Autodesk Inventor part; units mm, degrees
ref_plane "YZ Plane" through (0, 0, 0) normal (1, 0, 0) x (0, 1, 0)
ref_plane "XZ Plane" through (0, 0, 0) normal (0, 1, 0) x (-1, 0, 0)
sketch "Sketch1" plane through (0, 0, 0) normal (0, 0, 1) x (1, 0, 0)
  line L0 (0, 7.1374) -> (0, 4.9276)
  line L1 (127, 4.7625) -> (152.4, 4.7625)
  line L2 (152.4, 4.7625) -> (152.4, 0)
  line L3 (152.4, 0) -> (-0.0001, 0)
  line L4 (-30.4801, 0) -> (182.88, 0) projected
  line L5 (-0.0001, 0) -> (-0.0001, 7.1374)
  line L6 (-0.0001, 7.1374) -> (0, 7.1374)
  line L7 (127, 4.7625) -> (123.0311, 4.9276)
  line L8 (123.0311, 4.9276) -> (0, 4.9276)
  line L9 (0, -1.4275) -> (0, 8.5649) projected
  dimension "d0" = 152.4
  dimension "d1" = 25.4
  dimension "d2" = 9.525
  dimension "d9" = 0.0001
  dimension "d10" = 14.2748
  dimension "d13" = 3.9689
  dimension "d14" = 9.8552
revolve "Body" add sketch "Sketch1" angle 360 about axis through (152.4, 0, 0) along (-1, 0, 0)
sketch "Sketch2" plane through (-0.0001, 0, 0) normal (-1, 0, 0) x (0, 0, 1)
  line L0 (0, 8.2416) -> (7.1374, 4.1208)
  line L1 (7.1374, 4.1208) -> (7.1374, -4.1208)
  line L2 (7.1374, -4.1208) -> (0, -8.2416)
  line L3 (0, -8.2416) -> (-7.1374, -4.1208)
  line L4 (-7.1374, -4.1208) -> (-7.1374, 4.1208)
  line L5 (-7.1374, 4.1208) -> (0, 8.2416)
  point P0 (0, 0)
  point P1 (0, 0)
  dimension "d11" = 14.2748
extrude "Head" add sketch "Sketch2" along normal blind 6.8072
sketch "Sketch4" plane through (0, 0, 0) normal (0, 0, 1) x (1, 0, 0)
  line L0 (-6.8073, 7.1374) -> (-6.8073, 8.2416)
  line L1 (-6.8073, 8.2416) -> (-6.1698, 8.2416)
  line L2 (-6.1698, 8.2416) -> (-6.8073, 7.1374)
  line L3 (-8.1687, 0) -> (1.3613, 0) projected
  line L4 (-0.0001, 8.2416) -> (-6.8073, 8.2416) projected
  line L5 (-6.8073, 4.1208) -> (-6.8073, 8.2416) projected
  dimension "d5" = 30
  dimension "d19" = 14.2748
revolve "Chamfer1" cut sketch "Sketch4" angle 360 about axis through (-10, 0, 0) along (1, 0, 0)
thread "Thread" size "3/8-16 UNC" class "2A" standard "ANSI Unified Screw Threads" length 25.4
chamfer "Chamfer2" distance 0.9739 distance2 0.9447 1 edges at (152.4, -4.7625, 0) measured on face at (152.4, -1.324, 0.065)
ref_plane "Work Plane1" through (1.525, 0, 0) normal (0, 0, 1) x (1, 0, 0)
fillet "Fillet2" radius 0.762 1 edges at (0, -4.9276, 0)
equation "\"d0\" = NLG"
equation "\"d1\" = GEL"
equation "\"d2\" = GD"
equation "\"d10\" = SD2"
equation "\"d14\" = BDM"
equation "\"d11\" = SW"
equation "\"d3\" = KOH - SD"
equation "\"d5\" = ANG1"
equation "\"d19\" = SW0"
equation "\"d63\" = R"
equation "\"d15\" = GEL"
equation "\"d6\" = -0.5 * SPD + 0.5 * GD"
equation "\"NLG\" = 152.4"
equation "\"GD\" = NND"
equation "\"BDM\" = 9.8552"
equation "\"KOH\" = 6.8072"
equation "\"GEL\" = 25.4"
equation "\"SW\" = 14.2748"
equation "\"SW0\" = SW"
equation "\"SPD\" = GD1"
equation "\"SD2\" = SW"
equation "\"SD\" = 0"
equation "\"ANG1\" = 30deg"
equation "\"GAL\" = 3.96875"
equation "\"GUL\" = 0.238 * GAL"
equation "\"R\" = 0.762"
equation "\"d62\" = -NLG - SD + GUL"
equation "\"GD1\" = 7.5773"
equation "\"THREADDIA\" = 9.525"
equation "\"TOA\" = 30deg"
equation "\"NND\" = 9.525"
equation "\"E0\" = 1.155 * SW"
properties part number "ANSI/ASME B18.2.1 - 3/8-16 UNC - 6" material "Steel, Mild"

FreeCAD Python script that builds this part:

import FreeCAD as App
import Part
import Sketcher
from FreeCAD import Vector
Q = App.Units.Quantity


def edges_at(feature, points):
    """Names of the edges that pass closest to the given points."""
    edges = feature.Shape.Edges
    near = lambda p: min(range(len(edges)), key=lambda i: edges[i].distToShape(Part.Vertex(*p))[0])
    return sorted({f"Edge{near(p) + 1}" for p in points})

doc = App.newDocument("Part")
body = doc.addObject("PartDesign::Body", "Body")

sketch1 = doc.addObject("Sketcher::SketchObject", "Sketch")
body.addObject(sketch1)
sketch1.AttachmentSupport = (doc.XY_Plane, [""])
sketch1.MapMode = "FlatFace"
sketch1.addGeometry(Part.LineSegment(Vector(152.4, 4.8, 0), Vector(127, 4.8, 0)), False)
sketch1.addGeometry(Part.LineSegment(Vector(127, 4.8, 0), Vector(123, 4.9, 0)), False)
sketch1.addGeometry(Part.LineSegment(Vector(123, 4.9, 0), Vector(0, 4.9, 0)), False)
sketch1.addGeometry(Part.LineSegment(Vector(0, 4.9, 0), Vector(0, 0, 0)), False)
sketch1.addGeometry(Part.LineSegment(Vector(0, 0, 0), Vector(152.4, 0, 0)), False)
sketch1.addGeometry(Part.LineSegment(Vector(152.4, 0, 0), Vector(152.4, 4.8, 0)), False)
sketch1.addConstraint(Sketcher.Constraint("Coincident", 0, 2, 1, 1))
sketch1.addConstraint(Sketcher.Constraint("Coincident", 1, 2, 2, 1))
sketch1.addConstraint(Sketcher.Constraint("Coincident", 2, 2, 3, 1))
sketch1.addConstraint(Sketcher.Constraint("Coincident", 3, 2, 4, 1))
sketch1.addConstraint(Sketcher.Constraint("Coincident", 4, 2, 5, 1))
sketch1.addConstraint(Sketcher.Constraint("Coincident", 5, 2, 0, 1))
sketch1.addConstraint(Sketcher.Constraint("Horizontal", 0))
sketch1.addConstraint(Sketcher.Constraint("Horizontal", 2))
sketch1.addConstraint(Sketcher.Constraint("Vertical", 3))
sketch1.addConstraint(Sketcher.Constraint("Horizontal", 4))
sketch1.addConstraint(Sketcher.Constraint("Vertical", 5))
sketch1.addConstraint(Sketcher.Constraint("Coincident", 3, 2, -1, 1))
sketch1.addConstraint(Sketcher.Constraint("DistanceX", 0, 2, 0, 1, Q("1 in")))
sketch1.addConstraint(Sketcher.Constraint("DistanceX", 4, 1, 4, 2, Q("6 in")))
sketch1.addConstraint(Sketcher.Constraint("DistanceX", 1, 2, 0, 2, Q("3.969 mm")))
sketch1.addConstraint(Sketcher.Constraint("DistanceY", 3, 2, 3, 1, Q("0.194 in")))
sketch1.addConstraint(Sketcher.Constraint("DistanceY", 5, 1, 5, 2, Q("0.1875 in")))
revolution = doc.addObject("PartDesign::Revolution", "Revolution")
body.addObject(revolution)
revolution.Profile = sketch1
revolution.ReferenceAxis = (sketch1, ["H_Axis"])
revolution.Angle = 360

sketch2 = doc.addObject("Sketcher::SketchObject", "Sketch001")
body.addObject(sketch2)
sketch2.AttachmentSupport = (doc.YZ_Plane, [""])
sketch2.MapMode = "FlatFace"
sketch2.AttachmentOffset = App.Placement(Vector(0, 0, -0.0000039 * 25.4), App.Rotation())
sketch2.addGeometry(Part.LineSegment(Vector(4, 7, 0), Vector(8, 0, 0)), False)
sketch2.addGeometry(Part.LineSegment(Vector(8, 0, 0), Vector(4, -7, 0)), False)
sketch2.addGeometry(Part.LineSegment(Vector(4, -7, 0), Vector(-4, -7, 0)), False)
sketch2.addGeometry(Part.LineSegment(Vector(-4, -7, 0), Vector(-8, 0, 0)), False)
sketch2.addGeometry(Part.LineSegment(Vector(-8, 0, 0), Vector(-4, 7, 0)), False)
sketch2.addGeometry(Part.LineSegment(Vector(-4, 7, 0), Vector(4, 7, 0)), False)
sketch2.addConstraint(Sketcher.Constraint("Coincident", 0, 2, 1, 1))
sketch2.addConstraint(Sketcher.Constraint("Coincident", 1, 2, 2, 1))
sketch2.addConstraint(Sketcher.Constraint("Coincident", 2, 2, 3, 1))
sketch2.addConstraint(Sketcher.Constraint("Coincident", 3, 2, 4, 1))
sketch2.addConstraint(Sketcher.Constraint("Coincident", 4, 2, 5, 1))
sketch2.addConstraint(Sketcher.Constraint("Coincident", 5, 2, 0, 1))
sketch2.addConstraint(Sketcher.Constraint("Horizontal", 2))
sketch2.addConstraint(Sketcher.Constraint("Horizontal", 5))
sketch2.addConstraint(Sketcher.Constraint("Symmetric", 0, 2, 3, 2, -1, 1))
sketch2.addConstraint(Sketcher.Constraint("Symmetric", 1, 2, 4, 2, -1, 1))
sketch2.addConstraint(Sketcher.Constraint("PointOnObject", 0, 2, -1))
sketch2.addConstraint(Sketcher.Constraint("Parallel", 0, 3))
sketch2.addConstraint(Sketcher.Constraint("Vertical", 2, 2, 4, 2))
sketch2.addConstraint(Sketcher.Constraint("Angle", 0, Q("-59.9999 deg")))
sketch2.addConstraint(Sketcher.Constraint("DistanceY", 2, 2, 4, 2, Q("0.562 in")))
sketch2.addConstraint(Sketcher.Constraint("DistanceX", 2, 2, 2, 1, Q("8.2416 mm")))
pad1 = doc.addObject("PartDesign::Pad", "Pad")
body.addObject(pad1)
pad1.Profile = sketch2
pad1.Length = Q("0.268 in")
pad1.Reversed = True

sketch3 = doc.addObject("Sketcher::SketchObject", "Sketch002")
body.addObject(sketch3)
sketch3.AttachmentSupport = (doc.XY_Plane, [""])
sketch3.MapMode = "FlatFace"
sketch3.addGeometry(Part.LineSegment(Vector(-6.8, 8.2, 0), Vector(-6.8, 7.1, 0)), False)
sketch3.addGeometry(Part.LineSegment(Vector(-6.8, 7.1, 0), Vector(-6.2, 8.2, 0)), False)
sketch3.addGeometry(Part.LineSegment(Vector(-6.2, 8.2, 0), Vector(-6.8, 8.2, 0)), False)
sketch3.addConstraint(Sketcher.Constraint("Coincident", 0, 2, 1, 1))
sketch3.addConstraint(Sketcher.Constraint("Coincident", 1, 2, 2, 1))
sketch3.addConstraint(Sketcher.Constraint("Coincident", 2, 2, 0, 1))
sketch3.addConstraint(Sketcher.Constraint("Vertical", 0))
sketch3.addConstraint(Sketcher.Constraint("Horizontal", 2))
sketch3.addConstraint(Sketcher.Constraint("Angle", 1, Q("60.0004 deg")))
sketch3.addConstraint(Sketcher.Constraint("DistanceX", 2, 2, 2, 1, Q("0.0251 in")))
sketch3.addConstraint(Sketcher.Constraint("DistanceX", 0, 2, -1, 1, Q("0.268 in")))
sketch3.addConstraint(Sketcher.Constraint("DistanceY", -1, 1, 0, 2, Q("0.281 in")))
groove = doc.addObject("PartDesign::Groove", "Groove")
body.addObject(groove)
groove.Profile = sketch3
groove.ReferenceAxis = (sketch3, ["H_Axis"])
groove.Angle = 360
doc.recompute()

chamfer = doc.addObject("PartDesign::Chamfer", "Chamfer")
body.addObject(chamfer)
chamfer.Base = (groove, edges_at(groove, [(152.4, -4.763, 0)]))
chamfer.ChamferType = "Two distances"
chamfer.Size = 0.9739
chamfer.Size2 = Q("0.0371929 in")
doc.recompute()

fillet = doc.addObject("PartDesign::Fillet", "Fillet")
body.addObject(fillet)
fillet.Base = (chamfer, edges_at(chamfer, [(0, -4.928, 0)]))
fillet.Radius = Q("0.03 in")

doc.recompute()
